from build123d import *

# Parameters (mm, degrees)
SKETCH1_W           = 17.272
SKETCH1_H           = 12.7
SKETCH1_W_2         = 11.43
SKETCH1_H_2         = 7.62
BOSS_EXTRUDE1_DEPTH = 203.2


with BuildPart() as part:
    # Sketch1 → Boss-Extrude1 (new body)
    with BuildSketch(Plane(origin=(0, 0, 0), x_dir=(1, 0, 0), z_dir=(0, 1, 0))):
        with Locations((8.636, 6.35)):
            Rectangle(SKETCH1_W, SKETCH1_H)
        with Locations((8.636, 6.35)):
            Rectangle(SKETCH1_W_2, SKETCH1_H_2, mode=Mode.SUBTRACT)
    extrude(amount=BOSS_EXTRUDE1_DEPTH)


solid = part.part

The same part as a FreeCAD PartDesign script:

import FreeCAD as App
import Part
import Sketcher
from FreeCAD import Vector
Q = App.Units.Quantity


def add_polygon(sketch, points):
    """Adds a closed chain of lines whose ends are joined by coincident constraints."""
    first, n = sketch.GeometryCount, len(points)
    for a, b in zip(points, points[1:] + points[:1]):
        sketch.addGeometry(Part.LineSegment(App.Vector(*a, 0), App.Vector(*b, 0)), False)
    for i in range(n):
        sketch.addConstraint(Sketcher.Constraint("Coincident", first + i, 2, first + (i + 1) % n, 1))

doc = App.newDocument("Part")
params = doc.addObject("Spreadsheet::Sheet", "Params")
for row, (alias, value) in enumerate([
    ("sketch1_height", "0.5 in"),
    ("sketch1_height2", "0.3 in"),
    ("sketch1_width", "0.68 in"),
    ("sketch1_width2", "0.45 in"),
    ("pad1_length", "8 in"),
], start=1):
    params.set(f"A{row}", alias)
    params.set(f"B{row}", "=" + value)
    params.setAlias(f"B{row}", alias)

body = doc.addObject("PartDesign::Body", "Body")

sketch1 = body.newObject("Sketcher::SketchObject", "Sketch")
sketch1.AttachmentSupport = (doc.getObject("XZ_Plane"), [""])
sketch1.MapMode = "FlatFace"
add_polygon(sketch1, [(0, -12.7), (0, 0), (17.272, 0), (17.272, -12.7)])
add_polygon(sketch1, [(14.351, -2.54), (2.921, -2.54), (2.921, -10.16), (14.351, -10.16)])
sketch1.addConstraint([
    Sketcher.Constraint("Vertical", 0),
    Sketcher.Constraint("Horizontal", 1),
    Sketcher.Constraint("Vertical", 2),
    Sketcher.Constraint("Horizontal", 3),
    Sketcher.Constraint("Horizontal", 4),
    Sketcher.Constraint("Vertical", 5),
    Sketcher.Constraint("Horizontal", 6),
    Sketcher.Constraint("Vertical", 7),
    Sketcher.Constraint("Coincident", 0, 2, -1, 1),
    Sketcher.Constraint("DistanceY", 0, 1, 0, 2, Q("0.5 in")),
    Sketcher.Constraint("DistanceY", 5, 2, 5, 1, Q("0.3 in")),
    Sketcher.Constraint("DistanceX", 1, 1, 1, 2, Q("0.68 in")),
    Sketcher.Constraint("DistanceX", 4, 2, 4, 1, Q("0.45 in")),
    Sketcher.Constraint("DistanceY", 4, 2, -1, 1, Q("0.1 in")),
    Sketcher.Constraint("DistanceX", -1, 1, 4, 2, Q("0.115 in")),
])
sketch1.setExpression("Constraints[17]", "Params.sketch1_height")
sketch1.setExpression("Constraints[18]", "Params.sketch1_height2")
sketch1.setExpression("Constraints[19]", "Params.sketch1_width")
sketch1.setExpression("Constraints[20]", "Params.sketch1_width2")
pad1 = body.newObject("PartDesign::Pad", "Pad")
pad1.Profile = sketch1
pad1.setExpression("Length", "Params.pad1_length")
pad1.Reversed = True

doc.recompute()
